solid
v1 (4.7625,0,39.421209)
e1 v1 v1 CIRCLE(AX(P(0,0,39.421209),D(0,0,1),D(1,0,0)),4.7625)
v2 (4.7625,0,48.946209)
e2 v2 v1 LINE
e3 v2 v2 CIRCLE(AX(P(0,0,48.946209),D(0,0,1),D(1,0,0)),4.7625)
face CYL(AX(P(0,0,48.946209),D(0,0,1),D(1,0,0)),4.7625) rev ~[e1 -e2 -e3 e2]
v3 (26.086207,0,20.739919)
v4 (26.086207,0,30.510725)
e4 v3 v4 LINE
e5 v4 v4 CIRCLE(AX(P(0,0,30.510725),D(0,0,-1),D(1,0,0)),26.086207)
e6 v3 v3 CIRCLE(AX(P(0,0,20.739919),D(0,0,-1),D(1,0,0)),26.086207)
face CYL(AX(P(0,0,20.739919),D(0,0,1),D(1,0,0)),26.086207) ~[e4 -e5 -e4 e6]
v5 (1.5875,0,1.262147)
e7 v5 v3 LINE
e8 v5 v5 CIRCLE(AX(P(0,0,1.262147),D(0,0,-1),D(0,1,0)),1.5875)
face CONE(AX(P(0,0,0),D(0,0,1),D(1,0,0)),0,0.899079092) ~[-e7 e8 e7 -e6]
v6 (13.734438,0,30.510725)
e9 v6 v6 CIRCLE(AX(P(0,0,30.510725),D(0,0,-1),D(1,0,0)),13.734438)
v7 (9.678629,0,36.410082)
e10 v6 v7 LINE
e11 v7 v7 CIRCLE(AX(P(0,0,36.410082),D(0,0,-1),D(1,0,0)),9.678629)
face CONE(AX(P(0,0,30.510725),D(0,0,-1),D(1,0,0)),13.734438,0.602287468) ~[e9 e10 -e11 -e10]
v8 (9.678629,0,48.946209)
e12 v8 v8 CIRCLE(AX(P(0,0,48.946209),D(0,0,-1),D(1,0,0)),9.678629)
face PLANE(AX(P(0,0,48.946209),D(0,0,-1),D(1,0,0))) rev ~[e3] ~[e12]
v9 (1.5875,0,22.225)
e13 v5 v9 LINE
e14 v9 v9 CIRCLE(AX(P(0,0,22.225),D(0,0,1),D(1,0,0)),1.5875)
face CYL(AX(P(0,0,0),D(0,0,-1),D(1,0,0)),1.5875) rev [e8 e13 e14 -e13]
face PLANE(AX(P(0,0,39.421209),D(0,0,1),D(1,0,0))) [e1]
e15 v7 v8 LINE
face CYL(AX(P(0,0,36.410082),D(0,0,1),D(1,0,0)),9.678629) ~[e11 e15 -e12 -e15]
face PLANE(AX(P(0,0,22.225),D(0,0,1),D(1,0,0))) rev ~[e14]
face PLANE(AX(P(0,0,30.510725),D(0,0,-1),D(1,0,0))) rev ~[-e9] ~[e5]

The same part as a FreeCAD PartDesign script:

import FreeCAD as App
import Part
import Sketcher

V = App.Vector
Q = App.Units.Quantity


def add_polygon(sketch, points):
    """Adds a closed chain of lines whose ends are joined by coincident constraints."""
    first, n = sketch.GeometryCount, len(points)
    for a, b in zip(points, points[1:] + points[:1]):
        sketch.addGeometry(Part.LineSegment(App.Vector(*a, 0), App.Vector(*b, 0)), False)
    for i in range(n):
        sketch.addConstraint(Sketcher.Constraint("Coincident", first + i, 2, first + (i + 1) % n, 1))

doc = App.newDocument("Part")
params = doc.addObject("Spreadsheet::Sheet", "Params")
for row, (alias, value) in enumerate([
    ("revolution_angle", "360 deg"),
    ("sketch2_diameter", "0.375 in"),
    ("pocket1_length", "0.375 in"),
    ("sketch3_diameter", "0.125 in"),
    ("pocket2_length", "0.875 in"),
], start=1):
    params.set(f"A{row}", alias)
    params.set(f"B{row}", "=" + value)
    params.setAlias(f"B{row}", alias)

body = doc.addObject("PartDesign::Body", "Body")

sketch1 = body.newObject("Sketcher::SketchObject", "Sketch")
sketch1.AttachmentSupport = (doc.getObject("XZ_Plane"), [""])
sketch1.MapMode = "FlatFace"
add_polygon(sketch1, [(0, 49), (0, 0), (26, 21), (26, 31), (14, 31), (10, 36), (10, 49)])
sketch1.addConstraint([
    Sketcher.Constraint("Vertical", 0),
    Sketcher.Constraint("Vertical", 2),
    Sketcher.Constraint("Horizontal", 3),
    Sketcher.Constraint("Vertical", 5),
    Sketcher.Constraint("Horizontal", 6),
    Sketcher.Constraint("Coincident", 0, 2, -1, 1),
    Sketcher.Constraint("DistanceX", 3, 2, 3, 1, 12.351769),
    Sketcher.Constraint("DistanceX", 6, 2, 6, 1, 9.678629),
    Sketcher.Constraint("DistanceY", 0, 2, 0, 1, 48.946209),
    Sketcher.Constraint("Distance", 4, 7.15905),
    Sketcher.Constraint("DistanceY", 2, 1, 2, 2, 9.770806),
    Sketcher.Constraint("DistanceY", 5, 1, 5, 2, 12.536127),
    Sketcher.Constraint("DistanceY", -1, 1, 1, 2, 20.739919),
])
revolution = body.newObject("PartDesign::Revolution", "Revolution")
revolution.Profile = sketch1
revolution.ReferenceAxis = (sketch1, ["V_Axis"])
revolution.setExpression("Angle", "Params.revolution_angle")

sketch2 = body.newObject("Sketcher::SketchObject", "Sketch001")
sketch2.AttachmentSupport = (doc.getObject("XY_Plane"), [""])
sketch2.MapMode = "FlatFace"
sketch2.AttachmentOffset = App.Placement(V(0, 0, 48.946209), App.Rotation())
sketch2.addGeometry(Part.Circle(V(0, 0, 0), V(0, 0, 1), 4.8), False)
sketch2.addConstraint([
    Sketcher.Constraint("Coincident", 0, 3, -1, 1),
    Sketcher.Constraint("Diameter", 0, Q("0.375 in")),
])
sketch2.setExpression("Constraints[1]", "Params.sketch2_diameter")
pocket1 = body.newObject("PartDesign::Pocket", "Pocket")
pocket1.Profile = sketch2
pocket1.setExpression("Length", "Params.pocket1_length")

sketch3 = body.newObject("Sketcher::SketchObject", "Sketch002")
sketch3.AttachmentSupport = (doc.getObject("XY_Plane"), [""])
sketch3.MapMode = "FlatFace"
sketch3.addGeometry(Part.Circle(V(0, 0, 0), V(0, 0, 1), 1.6), False)
sketch3.addConstraint([
    Sketcher.Constraint("Coincident", 0, 3, -1, 1),
    Sketcher.Constraint("Diameter", 0, Q("0.125 in")),
])
sketch3.setExpression("Constraints[1]", "Params.sketch3_diameter")
pocket2 = body.newObject("PartDesign::Pocket", "Pocket001")
pocket2.Profile = sketch3
pocket2.setExpression("Length", "Params.pocket2_length")
pocket2.Reversed = True

doc.recompute()
